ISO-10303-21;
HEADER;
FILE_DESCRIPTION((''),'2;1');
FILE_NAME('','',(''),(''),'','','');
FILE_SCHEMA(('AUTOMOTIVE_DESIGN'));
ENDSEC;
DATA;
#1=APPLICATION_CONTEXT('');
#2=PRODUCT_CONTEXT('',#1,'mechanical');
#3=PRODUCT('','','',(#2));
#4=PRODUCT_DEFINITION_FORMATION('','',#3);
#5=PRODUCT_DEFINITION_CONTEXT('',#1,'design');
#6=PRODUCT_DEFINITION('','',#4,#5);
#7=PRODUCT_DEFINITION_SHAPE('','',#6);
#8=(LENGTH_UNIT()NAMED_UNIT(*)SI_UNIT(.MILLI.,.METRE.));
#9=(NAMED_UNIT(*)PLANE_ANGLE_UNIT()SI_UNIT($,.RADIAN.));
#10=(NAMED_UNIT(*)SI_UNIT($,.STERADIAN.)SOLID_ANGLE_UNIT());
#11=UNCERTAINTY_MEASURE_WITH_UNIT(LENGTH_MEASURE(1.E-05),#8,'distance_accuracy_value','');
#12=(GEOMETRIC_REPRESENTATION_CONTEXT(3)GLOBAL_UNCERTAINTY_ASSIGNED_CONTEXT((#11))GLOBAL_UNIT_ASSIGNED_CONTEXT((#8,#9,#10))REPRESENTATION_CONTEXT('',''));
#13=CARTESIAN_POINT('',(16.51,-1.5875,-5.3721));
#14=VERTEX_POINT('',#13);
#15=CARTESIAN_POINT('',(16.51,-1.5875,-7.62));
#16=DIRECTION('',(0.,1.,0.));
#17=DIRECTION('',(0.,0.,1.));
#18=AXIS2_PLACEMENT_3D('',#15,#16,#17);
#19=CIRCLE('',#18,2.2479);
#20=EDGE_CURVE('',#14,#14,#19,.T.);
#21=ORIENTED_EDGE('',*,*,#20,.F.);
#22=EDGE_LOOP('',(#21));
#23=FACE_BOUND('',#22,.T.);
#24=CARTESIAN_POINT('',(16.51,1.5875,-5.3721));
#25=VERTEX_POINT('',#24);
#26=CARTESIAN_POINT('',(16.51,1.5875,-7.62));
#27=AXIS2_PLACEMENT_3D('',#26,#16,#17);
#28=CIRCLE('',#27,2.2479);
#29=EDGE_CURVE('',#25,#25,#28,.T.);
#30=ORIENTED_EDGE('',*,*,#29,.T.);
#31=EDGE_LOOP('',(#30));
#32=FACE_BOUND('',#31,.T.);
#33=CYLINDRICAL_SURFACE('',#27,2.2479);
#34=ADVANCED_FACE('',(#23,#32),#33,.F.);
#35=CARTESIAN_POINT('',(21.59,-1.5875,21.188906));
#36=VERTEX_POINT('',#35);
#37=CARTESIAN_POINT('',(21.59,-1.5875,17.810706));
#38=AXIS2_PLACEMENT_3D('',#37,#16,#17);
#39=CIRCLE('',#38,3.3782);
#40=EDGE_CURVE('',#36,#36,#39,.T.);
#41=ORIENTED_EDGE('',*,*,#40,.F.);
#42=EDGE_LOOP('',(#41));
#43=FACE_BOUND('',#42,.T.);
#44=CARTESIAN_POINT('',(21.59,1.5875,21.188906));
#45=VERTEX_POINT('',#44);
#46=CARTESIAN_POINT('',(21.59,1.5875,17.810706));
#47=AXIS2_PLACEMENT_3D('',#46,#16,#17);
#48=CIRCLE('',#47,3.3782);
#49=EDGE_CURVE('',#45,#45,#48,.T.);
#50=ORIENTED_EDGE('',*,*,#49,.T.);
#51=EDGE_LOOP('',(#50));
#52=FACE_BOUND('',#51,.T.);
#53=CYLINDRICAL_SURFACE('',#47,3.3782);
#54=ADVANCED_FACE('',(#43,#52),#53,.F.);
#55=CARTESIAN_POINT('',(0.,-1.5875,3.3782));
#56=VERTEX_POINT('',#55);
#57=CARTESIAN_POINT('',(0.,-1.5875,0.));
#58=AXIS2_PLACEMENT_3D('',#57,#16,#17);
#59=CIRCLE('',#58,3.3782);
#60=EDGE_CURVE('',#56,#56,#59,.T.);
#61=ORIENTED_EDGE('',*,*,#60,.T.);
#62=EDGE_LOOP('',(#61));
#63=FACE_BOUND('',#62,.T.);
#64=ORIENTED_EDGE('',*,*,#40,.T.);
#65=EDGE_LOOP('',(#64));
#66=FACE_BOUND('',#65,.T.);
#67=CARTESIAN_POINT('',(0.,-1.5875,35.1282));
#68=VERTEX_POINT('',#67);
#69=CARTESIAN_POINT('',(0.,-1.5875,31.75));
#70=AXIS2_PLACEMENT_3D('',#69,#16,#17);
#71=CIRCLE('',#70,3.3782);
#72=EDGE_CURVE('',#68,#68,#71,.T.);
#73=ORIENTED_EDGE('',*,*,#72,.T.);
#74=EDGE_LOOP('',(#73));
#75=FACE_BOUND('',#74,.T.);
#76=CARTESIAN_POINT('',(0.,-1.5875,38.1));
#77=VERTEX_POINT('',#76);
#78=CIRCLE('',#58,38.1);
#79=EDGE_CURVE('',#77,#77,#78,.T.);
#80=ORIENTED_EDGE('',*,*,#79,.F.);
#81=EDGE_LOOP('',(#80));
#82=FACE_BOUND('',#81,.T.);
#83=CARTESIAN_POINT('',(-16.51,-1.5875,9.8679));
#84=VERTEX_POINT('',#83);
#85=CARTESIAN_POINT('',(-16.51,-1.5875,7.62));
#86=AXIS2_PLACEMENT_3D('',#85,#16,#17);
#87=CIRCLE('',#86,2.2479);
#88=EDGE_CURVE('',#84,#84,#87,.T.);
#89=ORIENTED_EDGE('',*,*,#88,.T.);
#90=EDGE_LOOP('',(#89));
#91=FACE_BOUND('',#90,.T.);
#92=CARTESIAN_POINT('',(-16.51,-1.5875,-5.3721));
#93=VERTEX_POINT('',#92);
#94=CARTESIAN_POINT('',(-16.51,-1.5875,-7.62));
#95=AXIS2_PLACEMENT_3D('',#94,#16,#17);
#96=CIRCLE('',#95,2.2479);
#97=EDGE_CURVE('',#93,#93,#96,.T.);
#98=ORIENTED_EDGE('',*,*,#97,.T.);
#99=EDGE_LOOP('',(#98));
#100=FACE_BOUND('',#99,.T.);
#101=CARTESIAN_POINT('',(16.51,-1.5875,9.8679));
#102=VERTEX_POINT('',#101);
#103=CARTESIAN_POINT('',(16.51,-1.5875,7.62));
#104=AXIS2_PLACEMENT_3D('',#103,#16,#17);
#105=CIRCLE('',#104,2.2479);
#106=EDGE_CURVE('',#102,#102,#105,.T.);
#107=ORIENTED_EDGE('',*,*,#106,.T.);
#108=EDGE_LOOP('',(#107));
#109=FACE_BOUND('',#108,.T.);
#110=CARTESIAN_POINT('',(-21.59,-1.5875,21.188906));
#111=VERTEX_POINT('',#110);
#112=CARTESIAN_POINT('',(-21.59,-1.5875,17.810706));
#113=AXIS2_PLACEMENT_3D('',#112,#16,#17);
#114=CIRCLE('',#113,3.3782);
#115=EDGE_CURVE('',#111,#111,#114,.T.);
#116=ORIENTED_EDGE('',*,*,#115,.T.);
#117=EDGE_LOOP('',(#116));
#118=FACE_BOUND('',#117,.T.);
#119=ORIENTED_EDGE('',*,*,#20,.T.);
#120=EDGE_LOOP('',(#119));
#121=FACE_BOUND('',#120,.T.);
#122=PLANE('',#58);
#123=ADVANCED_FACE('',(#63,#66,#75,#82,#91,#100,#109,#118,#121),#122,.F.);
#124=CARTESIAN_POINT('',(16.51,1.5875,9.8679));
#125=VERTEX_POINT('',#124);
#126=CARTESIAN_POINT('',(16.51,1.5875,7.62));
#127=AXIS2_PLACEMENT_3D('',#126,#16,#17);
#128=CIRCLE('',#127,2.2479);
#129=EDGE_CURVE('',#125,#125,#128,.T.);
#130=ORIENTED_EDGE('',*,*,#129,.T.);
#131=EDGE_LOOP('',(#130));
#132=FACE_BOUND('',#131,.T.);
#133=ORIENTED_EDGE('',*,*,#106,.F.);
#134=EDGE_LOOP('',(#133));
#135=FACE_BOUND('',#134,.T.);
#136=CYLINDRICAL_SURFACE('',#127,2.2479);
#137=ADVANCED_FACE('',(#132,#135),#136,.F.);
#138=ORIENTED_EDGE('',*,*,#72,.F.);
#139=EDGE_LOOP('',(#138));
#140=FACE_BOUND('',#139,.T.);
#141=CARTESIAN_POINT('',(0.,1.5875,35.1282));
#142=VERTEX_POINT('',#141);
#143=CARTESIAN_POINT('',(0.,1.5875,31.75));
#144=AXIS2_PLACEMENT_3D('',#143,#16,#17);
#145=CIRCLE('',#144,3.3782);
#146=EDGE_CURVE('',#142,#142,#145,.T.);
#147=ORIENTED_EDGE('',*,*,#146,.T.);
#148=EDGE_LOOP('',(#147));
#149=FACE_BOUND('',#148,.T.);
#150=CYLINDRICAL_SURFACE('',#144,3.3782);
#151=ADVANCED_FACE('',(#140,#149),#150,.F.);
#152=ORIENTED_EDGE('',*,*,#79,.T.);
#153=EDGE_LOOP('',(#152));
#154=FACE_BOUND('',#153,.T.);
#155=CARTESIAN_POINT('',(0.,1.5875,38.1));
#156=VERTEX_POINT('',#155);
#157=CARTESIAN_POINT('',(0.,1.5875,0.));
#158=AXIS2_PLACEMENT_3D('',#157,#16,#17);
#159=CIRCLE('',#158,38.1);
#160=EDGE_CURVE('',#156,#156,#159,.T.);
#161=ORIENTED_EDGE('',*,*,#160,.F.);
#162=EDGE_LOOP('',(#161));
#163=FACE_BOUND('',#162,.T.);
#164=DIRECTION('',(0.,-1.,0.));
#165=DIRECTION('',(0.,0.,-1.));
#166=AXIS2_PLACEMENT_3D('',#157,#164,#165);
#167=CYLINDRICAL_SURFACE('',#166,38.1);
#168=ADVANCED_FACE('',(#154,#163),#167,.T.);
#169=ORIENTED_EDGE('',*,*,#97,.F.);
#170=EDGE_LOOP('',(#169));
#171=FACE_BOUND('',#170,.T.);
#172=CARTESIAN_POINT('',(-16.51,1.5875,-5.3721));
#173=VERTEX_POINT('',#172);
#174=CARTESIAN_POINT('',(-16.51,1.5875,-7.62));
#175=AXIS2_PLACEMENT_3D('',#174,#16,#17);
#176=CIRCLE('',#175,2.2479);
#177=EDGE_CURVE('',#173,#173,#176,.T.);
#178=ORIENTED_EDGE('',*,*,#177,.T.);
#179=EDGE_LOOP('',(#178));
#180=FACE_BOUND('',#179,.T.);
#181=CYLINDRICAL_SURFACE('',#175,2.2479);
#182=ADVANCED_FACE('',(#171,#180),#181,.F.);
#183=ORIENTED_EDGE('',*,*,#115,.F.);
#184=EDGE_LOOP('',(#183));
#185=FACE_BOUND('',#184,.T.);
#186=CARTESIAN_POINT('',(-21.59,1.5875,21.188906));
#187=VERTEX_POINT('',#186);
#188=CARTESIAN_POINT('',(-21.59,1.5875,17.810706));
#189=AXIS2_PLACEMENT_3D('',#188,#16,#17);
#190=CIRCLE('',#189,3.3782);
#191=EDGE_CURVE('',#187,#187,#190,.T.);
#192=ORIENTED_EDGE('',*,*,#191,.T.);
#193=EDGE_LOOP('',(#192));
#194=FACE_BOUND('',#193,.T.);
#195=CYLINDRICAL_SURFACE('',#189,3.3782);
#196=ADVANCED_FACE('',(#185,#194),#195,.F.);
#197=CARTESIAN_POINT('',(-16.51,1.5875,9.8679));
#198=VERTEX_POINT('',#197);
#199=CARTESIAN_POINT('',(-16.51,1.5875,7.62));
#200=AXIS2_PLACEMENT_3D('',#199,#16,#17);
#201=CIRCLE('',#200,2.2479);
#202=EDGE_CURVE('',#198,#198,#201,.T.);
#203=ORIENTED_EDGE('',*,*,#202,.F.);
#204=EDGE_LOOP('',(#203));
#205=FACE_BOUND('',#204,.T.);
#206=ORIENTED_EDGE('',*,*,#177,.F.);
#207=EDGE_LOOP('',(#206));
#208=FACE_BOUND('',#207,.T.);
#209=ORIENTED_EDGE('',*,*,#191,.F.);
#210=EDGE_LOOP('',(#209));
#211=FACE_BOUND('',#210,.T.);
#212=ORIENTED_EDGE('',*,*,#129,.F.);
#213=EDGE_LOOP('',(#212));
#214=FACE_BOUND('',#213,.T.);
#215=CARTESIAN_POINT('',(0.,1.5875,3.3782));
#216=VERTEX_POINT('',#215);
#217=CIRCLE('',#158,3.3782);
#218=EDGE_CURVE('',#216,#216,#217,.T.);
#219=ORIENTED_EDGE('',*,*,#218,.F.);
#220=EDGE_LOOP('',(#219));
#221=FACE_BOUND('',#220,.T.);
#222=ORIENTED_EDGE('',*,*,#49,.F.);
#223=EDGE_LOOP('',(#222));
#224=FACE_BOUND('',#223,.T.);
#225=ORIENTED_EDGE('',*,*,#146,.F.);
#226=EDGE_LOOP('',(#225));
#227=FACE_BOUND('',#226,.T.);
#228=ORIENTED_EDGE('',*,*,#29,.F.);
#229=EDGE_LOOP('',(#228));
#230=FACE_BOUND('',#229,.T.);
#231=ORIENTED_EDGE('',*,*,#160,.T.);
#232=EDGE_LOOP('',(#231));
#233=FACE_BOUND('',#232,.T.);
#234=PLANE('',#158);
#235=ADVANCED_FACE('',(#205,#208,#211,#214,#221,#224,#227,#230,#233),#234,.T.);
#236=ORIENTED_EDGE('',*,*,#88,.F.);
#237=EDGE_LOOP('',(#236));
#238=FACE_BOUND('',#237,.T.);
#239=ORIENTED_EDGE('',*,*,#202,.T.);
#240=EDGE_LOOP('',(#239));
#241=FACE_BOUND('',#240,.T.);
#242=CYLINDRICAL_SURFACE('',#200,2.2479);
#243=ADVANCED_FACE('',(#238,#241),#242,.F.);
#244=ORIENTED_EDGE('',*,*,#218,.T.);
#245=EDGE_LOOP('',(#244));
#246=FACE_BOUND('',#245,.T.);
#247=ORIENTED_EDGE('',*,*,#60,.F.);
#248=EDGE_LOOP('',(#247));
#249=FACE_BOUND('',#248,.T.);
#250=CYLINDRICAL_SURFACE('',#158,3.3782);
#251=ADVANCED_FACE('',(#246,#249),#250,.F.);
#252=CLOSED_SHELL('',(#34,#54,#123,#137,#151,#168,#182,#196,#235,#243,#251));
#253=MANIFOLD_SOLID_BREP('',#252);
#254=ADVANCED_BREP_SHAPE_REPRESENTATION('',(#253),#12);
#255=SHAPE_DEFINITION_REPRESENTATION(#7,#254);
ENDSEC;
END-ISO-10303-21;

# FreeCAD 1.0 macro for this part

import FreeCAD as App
import Part
import Sketcher

V = App.Vector
Q = App.Units.Quantity

doc = App.newDocument("Part")
body = doc.addObject("PartDesign::Body", "Body")

# Sketch on XZ plane
sketch1 = body.newObject("Sketcher::SketchObject", "Sketch")
sketch1.AttachmentSupport = (doc.getObject("XZ_Plane"), [""])
sketch1.MapMode = "FlatFace"
sketch1.addGeometry(Part.Circle(V(0, 0, 0), V(0, 0, 1), 38.1), False)
sketch1.addConstraint([
    Sketcher.Constraint("Coincident", 0, 3, -1, 1),
    Sketcher.Constraint("Diameter", 0, Q("3 in")),
])
pad1 = body.newObject("PartDesign::Pad", "Pad")
pad1.Profile = sketch1
pad1.Length = Q("0.125 in")
pad1.Midplane = True

# Sketch on XZ plane
sketch2 = body.newObject("Sketcher::SketchObject", "Sketch001")
sketch2.AttachmentSupport = (doc.getObject("XZ_Plane"), [""])
sketch2.MapMode = "FlatFace"
sketch2.AttachmentOffset = App.Placement(V(0, 0, -0.0625 * 25.4), App.Rotation())
sketch2.addGeometry([
    Part.Circle(V(-21.59, 17.810706, 0), V(0, 0, 1), 3.3782),
    Part.Circle(V(21.59, 17.810706, 0), V(0, 0, 1), 3.3782),
], False)
sketch2.addConstraint([
    Sketcher.Constraint("Equal", 0, 1),
    Sketcher.Constraint("Symmetric", 0, 3, 1, 3, -2),
    Sketcher.Constraint("Diameter", 0, Q("0.266 in")),
    Sketcher.Constraint("DistanceX", 0, 3, 1, 3, Q("1.7 in")),
    Sketcher.Constraint("DistanceY", -1, 1, 0, 3, 17.810706),
])
doc.recompute()
hole = body.newObject("PartDesign::Hole", "Hole")
hole.Profile = sketch2
hole.ThreadType = "None"
hole.Diameter = Q("0.266 in")
hole.DepthType = "ThroughAll"
hole.Reversed = True

# Sketch on XZ plane
sketch3 = body.newObject("Sketcher::SketchObject", "Sketch002")
sketch3.AttachmentSupport = (doc.getObject("XZ_Plane"), [""])
sketch3.MapMode = "FlatFace"
sketch3.AttachmentOffset = App.Placement(V(0, 0, -0.0625 * 25.4), App.Rotation())
sketch3.addGeometry(Part.Circle(V(0, 0, 0), V(0, 0, 1), 3.3782), False)
sketch3.addConstraint([
    Sketcher.Constraint("Coincident", 0, 3, -1, 1),
    Sketcher.Constraint("Diameter", 0, Q("0.266 in")),
])
doc.recompute()
hole2 = body.newObject("PartDesign::Hole", "Hole001")
hole2.Profile = sketch3
hole2.ThreadType = "None"
hole2.Diameter = Q("0.266 in")
hole2.DepthType = "ThroughAll"
hole2.Reversed = True

# Sketch on XZ plane
sketch4 = body.newObject("Sketcher::SketchObject", "Sketch003")
sketch4.AttachmentSupport = (doc.getObject("XZ_Plane"), [""])
sketch4.MapMode = "FlatFace"
sketch4.AttachmentOffset = App.Placement(V(0, 0, -0.0625 * 25.4), App.Rotation())
sketch4.addGeometry(Part.Circle(V(0, 31.75, 0), V(0, 0, 1), 3.3782), False)
sketch4.addConstraint([
    Sketcher.Constraint("PointOnObject", 0, 3, -2),
    Sketcher.Constraint("Diameter", 0, Q("0.266 in")),
    Sketcher.Constraint("DistanceY", -1, 1, 0, 3, Q("1.25 in")),
])
doc.recompute()
hole3 = body.newObject("PartDesign::Hole", "Hole002")
hole3.Profile = sketch4
hole3.ThreadType = "None"
hole3.Diameter = Q("0.266 in")
hole3.DepthType = "ThroughAll"
hole3.Reversed = True

# Sketch on XZ plane
sketch5 = body.newObject("Sketcher::SketchObject", "Sketch004")
sketch5.AttachmentSupport = (doc.getObject("XZ_Plane"), [""])
sketch5.MapMode = "FlatFace"
sketch5.AttachmentOffset = App.Placement(V(0, 0, -0.0625 * 25.4), App.Rotation())
sketch5.addGeometry([
    Part.Circle(V(-16.51, -7.62, 0), V(0, 0, 1), 2.2479),
    Part.Circle(V(-16.51, 7.62, 0), V(0, 0, 1), 2.2479),
    Part.Circle(V(16.51, 7.62, 0), V(0, 0, 1), 2.2479),
    Part.Circle(V(16.51, -7.62, 0), V(0, 0, 1), 2.2479),
], False)
sketch5.addConstraint([
    Sketcher.Constraint("Equal", 0, 1),
    Sketcher.Constraint("Equal", 1, 2),
    Sketcher.Constraint("Equal", 2, 3),
    Sketcher.Constraint("Symmetric", 0, 3, 2, 3, -1, 1),
    Sketcher.Constraint("Symmetric", 1, 3, 3, 3, -1, 1),
    Sketcher.Constraint("Symmetric", 1, 3, 2, 3, -2),
    Sketcher.Constraint("Diameter", 0, Q("0.177 in")),
    Sketcher.Constraint("DistanceY", 0, 3, -1, 1, Q("0.3 in")),
    Sketcher.Constraint("DistanceX", 1, 3, 2, 3, Q("1.3 in")),
])
doc.recompute()
hole4 = body.newObject("PartDesign::Hole", "Hole003")
hole4.Profile = sketch5
hole4.ThreadType = "None"
hole4.Diameter = Q("0.177 in")
hole4.DepthType = "ThroughAll"
hole4.Reversed = True

doc.recompute()
